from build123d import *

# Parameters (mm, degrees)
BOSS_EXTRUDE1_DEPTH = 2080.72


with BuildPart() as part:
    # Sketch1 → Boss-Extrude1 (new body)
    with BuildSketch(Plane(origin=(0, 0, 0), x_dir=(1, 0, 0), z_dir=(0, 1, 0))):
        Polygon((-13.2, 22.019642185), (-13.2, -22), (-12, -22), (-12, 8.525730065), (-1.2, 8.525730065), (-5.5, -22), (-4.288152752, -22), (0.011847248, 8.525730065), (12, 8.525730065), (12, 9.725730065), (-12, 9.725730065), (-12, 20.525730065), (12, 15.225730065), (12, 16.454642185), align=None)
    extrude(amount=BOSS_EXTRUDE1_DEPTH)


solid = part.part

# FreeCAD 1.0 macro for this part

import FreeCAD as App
import Part
import Sketcher


def add_polygon(sketch, points):
    """Adds a closed chain of lines whose ends are joined by coincident constraints."""
    first, n = sketch.GeometryCount, len(points)
    for a, b in zip(points, points[1:] + points[:1]):
        sketch.addGeometry(Part.LineSegment(App.Vector(*a, 0), App.Vector(*b, 0)), False)
    for i in range(n):
        sketch.addConstraint(Sketcher.Constraint("Coincident", first + i, 2, first + (i + 1) % n, 1))

doc = App.newDocument("Part")
body = doc.addObject("PartDesign::Body", "Body")

# Sketch on XZ plane
sketch1 = body.newObject("Sketcher::SketchObject", "Sketch")
sketch1.AttachmentSupport = (doc.getObject("XZ_Plane"), [""])
sketch1.MapMode = "FlatFace"
add_polygon(sketch1, [(-13.2, -22), (-13.2, 22), (-12, 22), (-12, -8.5), (-1.2, -8.5), (-5.5, 22), (-4.3, 22), (0, -8.5), (12, -8.5), (12, -9.7), (-12, -9.7), (-12, -20.5), (12, -15.2), (12, -16.5)])  # lines 0-13
sketch1.addConstraint([
    Sketcher.Constraint("Vertical", 0),
    Sketcher.Constraint("Horizontal", 1),
    Sketcher.Constraint("Vertical", 2),
    Sketcher.Constraint("Horizontal", 3),
    Sketcher.Constraint("Horizontal", 5),
    Sketcher.Constraint("Horizontal", 7),
    Sketcher.Constraint("Vertical", 8),
    Sketcher.Constraint("Horizontal", 9),
    Sketcher.Constraint("Vertical", 10),
    Sketcher.Constraint("Vertical", 12),
    Sketcher.Constraint("Symmetric", 2, 2, 7, 2, -2),
    Sketcher.Constraint("Parallel", 4, 6),
    Sketcher.Constraint("Parallel", 11, 13),
    Sketcher.Constraint("Horizontal", 1, 2, 4, 2),
    Sketcher.Constraint("Vertical", 2, 2, 9, 2),
    Sketcher.Constraint("Vertical", 8, 2, 11, 2),
    Sketcher.Constraint("Equal", 1, 8),
    Sketcher.Constraint("Equal", 3, 10),
    Sketcher.Constraint("DistanceX", 9, 2, 9, 1, 24.0),
    Sketcher.Constraint("DistanceX", 1, 1, 1, 2, 1.2),
    Sketcher.Constraint("DistanceX", 3, 1, 3, 2, 10.8),
    Sketcher.Constraint("DistanceY", -1, 1, 0, 2, 22.0),
    Sketcher.Constraint("DistanceX", 4, 2, -1, 1, 5.5),
    Sketcher.Constraint("DistanceY", 11, 2, 8, 2, 5.5),
    Sketcher.Constraint("Distance", 4, 30.827102),
    Sketcher.Constraint("DistanceX", 5, 1, 5, 2, 1.211847),
    Sketcher.Constraint("DistanceY", 0, 1, 0, 2, 44.019642),
])
pad1 = body.newObject("PartDesign::Pad", "Pad")
pad1.Profile = sketch1
pad1.Length = 2080.72
pad1.Reversed = True

doc.recompute()
